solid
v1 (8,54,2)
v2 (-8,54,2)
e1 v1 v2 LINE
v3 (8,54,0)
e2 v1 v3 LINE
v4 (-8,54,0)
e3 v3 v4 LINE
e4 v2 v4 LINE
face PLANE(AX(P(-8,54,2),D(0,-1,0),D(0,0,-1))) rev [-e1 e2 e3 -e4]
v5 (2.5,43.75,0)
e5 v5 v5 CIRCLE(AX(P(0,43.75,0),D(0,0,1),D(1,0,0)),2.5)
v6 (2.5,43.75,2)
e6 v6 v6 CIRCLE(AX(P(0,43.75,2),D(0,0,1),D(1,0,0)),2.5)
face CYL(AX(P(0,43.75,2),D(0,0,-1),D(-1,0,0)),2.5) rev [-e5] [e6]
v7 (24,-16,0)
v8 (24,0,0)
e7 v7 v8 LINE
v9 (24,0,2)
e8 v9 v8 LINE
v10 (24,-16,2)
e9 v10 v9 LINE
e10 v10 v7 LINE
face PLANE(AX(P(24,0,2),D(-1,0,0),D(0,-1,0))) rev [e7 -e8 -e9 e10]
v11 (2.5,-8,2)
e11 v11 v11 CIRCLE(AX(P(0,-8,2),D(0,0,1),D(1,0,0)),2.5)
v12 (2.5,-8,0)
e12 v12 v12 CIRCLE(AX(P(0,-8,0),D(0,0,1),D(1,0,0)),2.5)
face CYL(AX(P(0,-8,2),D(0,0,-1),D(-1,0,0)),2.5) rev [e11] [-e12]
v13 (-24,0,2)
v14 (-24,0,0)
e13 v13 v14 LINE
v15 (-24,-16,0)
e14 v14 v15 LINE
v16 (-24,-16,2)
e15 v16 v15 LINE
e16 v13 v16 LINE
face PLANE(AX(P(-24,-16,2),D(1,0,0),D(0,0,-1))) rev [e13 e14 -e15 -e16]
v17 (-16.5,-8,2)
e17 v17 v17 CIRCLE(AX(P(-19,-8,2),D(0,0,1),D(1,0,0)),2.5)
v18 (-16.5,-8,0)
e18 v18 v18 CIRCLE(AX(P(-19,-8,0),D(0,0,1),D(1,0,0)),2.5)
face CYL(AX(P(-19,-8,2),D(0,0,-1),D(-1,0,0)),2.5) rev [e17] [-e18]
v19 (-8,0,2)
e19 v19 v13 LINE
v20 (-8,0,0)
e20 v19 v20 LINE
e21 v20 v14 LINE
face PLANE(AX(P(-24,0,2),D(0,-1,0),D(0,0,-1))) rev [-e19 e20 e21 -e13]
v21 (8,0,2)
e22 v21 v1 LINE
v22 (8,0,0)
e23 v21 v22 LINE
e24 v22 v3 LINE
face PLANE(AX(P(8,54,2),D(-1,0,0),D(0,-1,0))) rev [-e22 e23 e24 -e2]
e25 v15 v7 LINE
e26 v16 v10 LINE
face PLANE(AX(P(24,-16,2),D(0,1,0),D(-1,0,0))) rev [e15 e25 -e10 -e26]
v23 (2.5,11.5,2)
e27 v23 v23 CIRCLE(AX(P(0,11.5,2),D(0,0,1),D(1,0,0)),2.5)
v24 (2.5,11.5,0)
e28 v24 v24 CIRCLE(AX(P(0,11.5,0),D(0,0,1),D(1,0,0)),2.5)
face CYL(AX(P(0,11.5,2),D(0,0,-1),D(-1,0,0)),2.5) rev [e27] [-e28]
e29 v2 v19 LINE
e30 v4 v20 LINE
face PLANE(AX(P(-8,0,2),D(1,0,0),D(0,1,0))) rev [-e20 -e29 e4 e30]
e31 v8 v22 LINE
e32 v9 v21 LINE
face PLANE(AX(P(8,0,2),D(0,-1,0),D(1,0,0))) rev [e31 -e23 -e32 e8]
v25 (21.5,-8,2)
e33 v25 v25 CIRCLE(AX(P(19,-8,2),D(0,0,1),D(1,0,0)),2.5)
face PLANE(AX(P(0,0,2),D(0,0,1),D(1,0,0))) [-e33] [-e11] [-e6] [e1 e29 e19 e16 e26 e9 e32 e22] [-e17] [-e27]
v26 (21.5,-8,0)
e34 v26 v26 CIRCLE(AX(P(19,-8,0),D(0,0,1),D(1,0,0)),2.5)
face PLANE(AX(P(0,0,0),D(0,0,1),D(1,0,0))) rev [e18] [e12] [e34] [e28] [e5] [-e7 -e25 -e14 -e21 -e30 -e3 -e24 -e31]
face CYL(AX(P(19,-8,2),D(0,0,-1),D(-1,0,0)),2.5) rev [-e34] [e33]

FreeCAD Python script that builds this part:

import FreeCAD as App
import Part
import Sketcher
from FreeCAD import Vector


def add_polygon(sketch, points):
    """Adds a closed chain of lines whose ends are joined by coincident constraints."""
    first, n = sketch.GeometryCount, len(points)
    for a, b in zip(points, points[1:] + points[:1]):
        sketch.addGeometry(Part.LineSegment(App.Vector(*a, 0), App.Vector(*b, 0)), False)
    for i in range(n):
        sketch.addConstraint(Sketcher.Constraint("Coincident", first + i, 2, first + (i + 1) % n, 1))

doc = App.newDocument("Part")
body = doc.addObject("PartDesign::Body", "Body")

# Sketch on XY plane
sketch1 = body.newObject("Sketcher::SketchObject", "Sketch")
sketch1.AttachmentSupport = (doc.getObject("XY_Plane"), [""])
sketch1.MapMode = "FlatFace"
add_polygon(sketch1, [(-8, 54), (-8, 0), (-24, 0), (-24, -16), (24, -16), (24, 0), (8, 0), (8, 54)])  # lines 0-7
sketch1.addGeometry(Part.Circle(Vector(19, -8, 0), Vector(0, 0, 1), 2.5), False)  # 8
sketch1.addGeometry(Part.Circle(Vector(0, -8, 0), Vector(0, 0, 1), 2.5), False)  # 9
sketch1.addGeometry(Part.Circle(Vector(-19, -8, 0), Vector(0, 0, 1), 2.5), False)  # 10
sketch1.addGeometry(Part.Circle(Vector(0, 11.5, 0), Vector(0, 0, 1), 2.5), False)  # 11
sketch1.addGeometry(Part.Circle(Vector(0, 43.8, 0), Vector(0, 0, 1), 2.5), False)  # 12
sketch1.addConstraint(Sketcher.Constraint("Vertical", 0))
sketch1.addConstraint(Sketcher.Constraint("Horizontal", 1))
sketch1.addConstraint(Sketcher.Constraint("Vertical", 2))
sketch1.addConstraint(Sketcher.Constraint("Horizontal", 3))
sketch1.addConstraint(Sketcher.Constraint("Vertical", 4))
sketch1.addConstraint(Sketcher.Constraint("Horizontal", 5))
sketch1.addConstraint(Sketcher.Constraint("Vertical", 6))
sketch1.addConstraint(Sketcher.Constraint("Horizontal", 7))
sketch1.addConstraint(Sketcher.Constraint("Equal", 8, 9))
sketch1.addConstraint(Sketcher.Constraint("Equal", 9, 10))
sketch1.addConstraint(Sketcher.Constraint("Equal", 10, 11))
sketch1.addConstraint(Sketcher.Constraint("Equal", 11, 12))
sketch1.addConstraint(Sketcher.Constraint("Symmetric", 1, 2, 4, 2, -1, 1))
sketch1.addConstraint(Sketcher.Constraint("Symmetric", 8, 3, 10, 3, -2))
sketch1.addConstraint(Sketcher.Constraint("Symmetric", 0, 2, 5, 2, -2))
sketch1.addConstraint(Sketcher.Constraint("PointOnObject", 9, 3, -2))
sketch1.addConstraint(Sketcher.Constraint("PointOnObject", 11, 3, -2))
sketch1.addConstraint(Sketcher.Constraint("PointOnObject", 12, 3, -2))
sketch1.addConstraint(Sketcher.Constraint("Horizontal", 8, 3, 9, 3))
sketch1.addConstraint(Sketcher.Constraint("Equal", 5, 7))
sketch1.addConstraint(Sketcher.Constraint("Equal", 7, 2))
sketch1.addConstraint(Sketcher.Constraint("Diameter", 8, 5.0))
sketch1.addConstraint(Sketcher.Constraint("DistanceX", 1, 2, 1, 1, 16.0))
sketch1.addConstraint(Sketcher.Constraint("DistanceY", 0, 2, 0, 1, 54.0))
sketch1.addConstraint(Sketcher.Constraint("DistanceX", -1, 1, 8, 3, 19.0))
sketch1.addConstraint(Sketcher.Constraint("DistanceY", 8, 3, -1, 1, 8.0))
sketch1.addConstraint(Sketcher.Constraint("DistanceY", -1, 1, 11, 3, 11.5))
sketch1.addConstraint(Sketcher.Constraint("DistanceY", -1, 1, 12, 3, 43.75))
pad1 = body.newObject("PartDesign::Pad", "Pad")
pad1.Profile = sketch1
pad1.Length = 2

doc.recompute()
